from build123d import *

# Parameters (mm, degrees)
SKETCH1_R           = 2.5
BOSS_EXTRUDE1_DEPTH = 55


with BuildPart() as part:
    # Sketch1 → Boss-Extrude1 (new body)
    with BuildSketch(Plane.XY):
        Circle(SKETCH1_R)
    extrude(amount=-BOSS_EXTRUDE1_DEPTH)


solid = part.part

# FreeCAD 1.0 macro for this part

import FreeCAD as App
import Part
import Sketcher
from FreeCAD import Vector
Q = App.Units.Quantity

doc = App.newDocument("Part")
body = doc.addObject("PartDesign::Body", "Body")

# Sketch on XY plane
sketch1 = body.newObject("Sketcher::SketchObject", "Sketch")
sketch1.AttachmentSupport = (doc.getObject("XY_Plane"), [""])
sketch1.MapMode = "FlatFace"
sketch1.addGeometry(Part.Circle(Vector(0, 0, 0), Vector(0, 0, 1), 2.5), False)
sketch1.addConstraint([
    Sketcher.Constraint("Coincident", 0, 3, -1, 1),
    Sketcher.Constraint("Diameter", 0, Q("5 mm")),
])
pad1 = body.newObject("PartDesign::Pad", "Pad")
pad1.Profile = sketch1
pad1.Length = 55
pad1.Reversed = True

doc.recompute()
